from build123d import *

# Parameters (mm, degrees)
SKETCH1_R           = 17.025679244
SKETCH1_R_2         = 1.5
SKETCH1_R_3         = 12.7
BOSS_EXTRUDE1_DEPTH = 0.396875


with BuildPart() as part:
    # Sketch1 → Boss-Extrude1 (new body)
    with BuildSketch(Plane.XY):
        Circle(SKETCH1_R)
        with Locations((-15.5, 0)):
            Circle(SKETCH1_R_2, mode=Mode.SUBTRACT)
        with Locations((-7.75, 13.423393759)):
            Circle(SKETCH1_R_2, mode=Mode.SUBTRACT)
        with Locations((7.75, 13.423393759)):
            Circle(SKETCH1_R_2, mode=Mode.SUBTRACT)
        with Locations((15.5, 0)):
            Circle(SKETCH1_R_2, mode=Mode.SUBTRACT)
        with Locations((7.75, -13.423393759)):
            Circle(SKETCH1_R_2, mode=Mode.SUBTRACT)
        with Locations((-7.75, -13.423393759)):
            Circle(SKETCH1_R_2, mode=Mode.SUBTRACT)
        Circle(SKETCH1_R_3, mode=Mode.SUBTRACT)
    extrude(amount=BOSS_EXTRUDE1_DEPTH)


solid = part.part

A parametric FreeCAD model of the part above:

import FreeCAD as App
import Part
import Sketcher
Q = App.Units.Quantity

doc = App.newDocument("Part")
body = doc.addObject("PartDesign::Body", "Body")

sketch1 = body.newObject("Sketcher::SketchObject", "Sketch")
sketch1.AttachmentSupport = (doc.getObject("XY_Plane"), [""])
sketch1.MapMode = "FlatFace"
sketch1.addGeometry(Part.Circle(App.Vector(0, 0, 0), App.Vector(0, 0, 1), 17.025679), False)
sketch1.addGeometry(Part.Circle(App.Vector(-7.75, -13.423394, 0), App.Vector(0, 0, 1), 1.5), False)
sketch1.addGeometry(Part.Circle(App.Vector(7.75, -13.423394, 0), App.Vector(0, 0, 1), 1.5), False)
sketch1.addGeometry(Part.Circle(App.Vector(-15.5, 0, 0), App.Vector(0, 0, 1), 1.5), False)
sketch1.addGeometry(Part.Circle(App.Vector(-7.75, 13.423394, 0), App.Vector(0, 0, 1), 1.5), False)
sketch1.addGeometry(Part.Circle(App.Vector(0, 0, 0), App.Vector(0, 0, 1), 12.7), False)
sketch1.addGeometry(Part.Circle(App.Vector(15.5, 0, 0), App.Vector(0, 0, 1), 1.5), False)
sketch1.addGeometry(Part.Circle(App.Vector(7.75, 13.423394, 0), App.Vector(0, 0, 1), 1.5), False)
sketch1.addConstraint(Sketcher.Constraint("Coincident", 0, 3, -1, 1))
sketch1.addConstraint(Sketcher.Constraint("Coincident", 5, 3, -1, 1))
sketch1.addConstraint(Sketcher.Constraint("Equal", 1, 2))
sketch1.addConstraint(Sketcher.Constraint("Equal", 2, 3))
sketch1.addConstraint(Sketcher.Constraint("Equal", 3, 4))
sketch1.addConstraint(Sketcher.Constraint("Equal", 4, 6))
sketch1.addConstraint(Sketcher.Constraint("Equal", 6, 7))
sketch1.addConstraint(Sketcher.Constraint("Symmetric", 2, 3, 4, 3, -1, 1))
sketch1.addConstraint(Sketcher.Constraint("Symmetric", 3, 3, 6, 3, -1, 1))
sketch1.addConstraint(Sketcher.Constraint("Symmetric", 1, 3, 7, 3, -1, 1))
sketch1.addConstraint(Sketcher.Constraint("Symmetric", 1, 3, 2, 3, -2))
sketch1.addConstraint(Sketcher.Constraint("PointOnObject", 3, 3, -1))
sketch1.addConstraint(Sketcher.Constraint("Diameter", 5, Q("1 in")))
sketch1.addConstraint(Sketcher.Constraint("Diameter", 1, 3.0))
sketch1.addConstraint(Sketcher.Constraint("Diameter", 0, 34.051358))
sketch1.addConstraint(Sketcher.Constraint("DistanceX", 1, 3, -1, 1, 7.75))
sketch1.addConstraint(Sketcher.Constraint("DistanceX", 3, 3, -1, 1, 15.5))
sketch1.addConstraint(Sketcher.Constraint("DistanceY", 1, 3, -1, 1, 13.423394))
pad1 = body.newObject("PartDesign::Pad", "Pad")
pad1.Profile = sketch1
pad1.Length = Q("0.015625 in")

doc.recompute()
